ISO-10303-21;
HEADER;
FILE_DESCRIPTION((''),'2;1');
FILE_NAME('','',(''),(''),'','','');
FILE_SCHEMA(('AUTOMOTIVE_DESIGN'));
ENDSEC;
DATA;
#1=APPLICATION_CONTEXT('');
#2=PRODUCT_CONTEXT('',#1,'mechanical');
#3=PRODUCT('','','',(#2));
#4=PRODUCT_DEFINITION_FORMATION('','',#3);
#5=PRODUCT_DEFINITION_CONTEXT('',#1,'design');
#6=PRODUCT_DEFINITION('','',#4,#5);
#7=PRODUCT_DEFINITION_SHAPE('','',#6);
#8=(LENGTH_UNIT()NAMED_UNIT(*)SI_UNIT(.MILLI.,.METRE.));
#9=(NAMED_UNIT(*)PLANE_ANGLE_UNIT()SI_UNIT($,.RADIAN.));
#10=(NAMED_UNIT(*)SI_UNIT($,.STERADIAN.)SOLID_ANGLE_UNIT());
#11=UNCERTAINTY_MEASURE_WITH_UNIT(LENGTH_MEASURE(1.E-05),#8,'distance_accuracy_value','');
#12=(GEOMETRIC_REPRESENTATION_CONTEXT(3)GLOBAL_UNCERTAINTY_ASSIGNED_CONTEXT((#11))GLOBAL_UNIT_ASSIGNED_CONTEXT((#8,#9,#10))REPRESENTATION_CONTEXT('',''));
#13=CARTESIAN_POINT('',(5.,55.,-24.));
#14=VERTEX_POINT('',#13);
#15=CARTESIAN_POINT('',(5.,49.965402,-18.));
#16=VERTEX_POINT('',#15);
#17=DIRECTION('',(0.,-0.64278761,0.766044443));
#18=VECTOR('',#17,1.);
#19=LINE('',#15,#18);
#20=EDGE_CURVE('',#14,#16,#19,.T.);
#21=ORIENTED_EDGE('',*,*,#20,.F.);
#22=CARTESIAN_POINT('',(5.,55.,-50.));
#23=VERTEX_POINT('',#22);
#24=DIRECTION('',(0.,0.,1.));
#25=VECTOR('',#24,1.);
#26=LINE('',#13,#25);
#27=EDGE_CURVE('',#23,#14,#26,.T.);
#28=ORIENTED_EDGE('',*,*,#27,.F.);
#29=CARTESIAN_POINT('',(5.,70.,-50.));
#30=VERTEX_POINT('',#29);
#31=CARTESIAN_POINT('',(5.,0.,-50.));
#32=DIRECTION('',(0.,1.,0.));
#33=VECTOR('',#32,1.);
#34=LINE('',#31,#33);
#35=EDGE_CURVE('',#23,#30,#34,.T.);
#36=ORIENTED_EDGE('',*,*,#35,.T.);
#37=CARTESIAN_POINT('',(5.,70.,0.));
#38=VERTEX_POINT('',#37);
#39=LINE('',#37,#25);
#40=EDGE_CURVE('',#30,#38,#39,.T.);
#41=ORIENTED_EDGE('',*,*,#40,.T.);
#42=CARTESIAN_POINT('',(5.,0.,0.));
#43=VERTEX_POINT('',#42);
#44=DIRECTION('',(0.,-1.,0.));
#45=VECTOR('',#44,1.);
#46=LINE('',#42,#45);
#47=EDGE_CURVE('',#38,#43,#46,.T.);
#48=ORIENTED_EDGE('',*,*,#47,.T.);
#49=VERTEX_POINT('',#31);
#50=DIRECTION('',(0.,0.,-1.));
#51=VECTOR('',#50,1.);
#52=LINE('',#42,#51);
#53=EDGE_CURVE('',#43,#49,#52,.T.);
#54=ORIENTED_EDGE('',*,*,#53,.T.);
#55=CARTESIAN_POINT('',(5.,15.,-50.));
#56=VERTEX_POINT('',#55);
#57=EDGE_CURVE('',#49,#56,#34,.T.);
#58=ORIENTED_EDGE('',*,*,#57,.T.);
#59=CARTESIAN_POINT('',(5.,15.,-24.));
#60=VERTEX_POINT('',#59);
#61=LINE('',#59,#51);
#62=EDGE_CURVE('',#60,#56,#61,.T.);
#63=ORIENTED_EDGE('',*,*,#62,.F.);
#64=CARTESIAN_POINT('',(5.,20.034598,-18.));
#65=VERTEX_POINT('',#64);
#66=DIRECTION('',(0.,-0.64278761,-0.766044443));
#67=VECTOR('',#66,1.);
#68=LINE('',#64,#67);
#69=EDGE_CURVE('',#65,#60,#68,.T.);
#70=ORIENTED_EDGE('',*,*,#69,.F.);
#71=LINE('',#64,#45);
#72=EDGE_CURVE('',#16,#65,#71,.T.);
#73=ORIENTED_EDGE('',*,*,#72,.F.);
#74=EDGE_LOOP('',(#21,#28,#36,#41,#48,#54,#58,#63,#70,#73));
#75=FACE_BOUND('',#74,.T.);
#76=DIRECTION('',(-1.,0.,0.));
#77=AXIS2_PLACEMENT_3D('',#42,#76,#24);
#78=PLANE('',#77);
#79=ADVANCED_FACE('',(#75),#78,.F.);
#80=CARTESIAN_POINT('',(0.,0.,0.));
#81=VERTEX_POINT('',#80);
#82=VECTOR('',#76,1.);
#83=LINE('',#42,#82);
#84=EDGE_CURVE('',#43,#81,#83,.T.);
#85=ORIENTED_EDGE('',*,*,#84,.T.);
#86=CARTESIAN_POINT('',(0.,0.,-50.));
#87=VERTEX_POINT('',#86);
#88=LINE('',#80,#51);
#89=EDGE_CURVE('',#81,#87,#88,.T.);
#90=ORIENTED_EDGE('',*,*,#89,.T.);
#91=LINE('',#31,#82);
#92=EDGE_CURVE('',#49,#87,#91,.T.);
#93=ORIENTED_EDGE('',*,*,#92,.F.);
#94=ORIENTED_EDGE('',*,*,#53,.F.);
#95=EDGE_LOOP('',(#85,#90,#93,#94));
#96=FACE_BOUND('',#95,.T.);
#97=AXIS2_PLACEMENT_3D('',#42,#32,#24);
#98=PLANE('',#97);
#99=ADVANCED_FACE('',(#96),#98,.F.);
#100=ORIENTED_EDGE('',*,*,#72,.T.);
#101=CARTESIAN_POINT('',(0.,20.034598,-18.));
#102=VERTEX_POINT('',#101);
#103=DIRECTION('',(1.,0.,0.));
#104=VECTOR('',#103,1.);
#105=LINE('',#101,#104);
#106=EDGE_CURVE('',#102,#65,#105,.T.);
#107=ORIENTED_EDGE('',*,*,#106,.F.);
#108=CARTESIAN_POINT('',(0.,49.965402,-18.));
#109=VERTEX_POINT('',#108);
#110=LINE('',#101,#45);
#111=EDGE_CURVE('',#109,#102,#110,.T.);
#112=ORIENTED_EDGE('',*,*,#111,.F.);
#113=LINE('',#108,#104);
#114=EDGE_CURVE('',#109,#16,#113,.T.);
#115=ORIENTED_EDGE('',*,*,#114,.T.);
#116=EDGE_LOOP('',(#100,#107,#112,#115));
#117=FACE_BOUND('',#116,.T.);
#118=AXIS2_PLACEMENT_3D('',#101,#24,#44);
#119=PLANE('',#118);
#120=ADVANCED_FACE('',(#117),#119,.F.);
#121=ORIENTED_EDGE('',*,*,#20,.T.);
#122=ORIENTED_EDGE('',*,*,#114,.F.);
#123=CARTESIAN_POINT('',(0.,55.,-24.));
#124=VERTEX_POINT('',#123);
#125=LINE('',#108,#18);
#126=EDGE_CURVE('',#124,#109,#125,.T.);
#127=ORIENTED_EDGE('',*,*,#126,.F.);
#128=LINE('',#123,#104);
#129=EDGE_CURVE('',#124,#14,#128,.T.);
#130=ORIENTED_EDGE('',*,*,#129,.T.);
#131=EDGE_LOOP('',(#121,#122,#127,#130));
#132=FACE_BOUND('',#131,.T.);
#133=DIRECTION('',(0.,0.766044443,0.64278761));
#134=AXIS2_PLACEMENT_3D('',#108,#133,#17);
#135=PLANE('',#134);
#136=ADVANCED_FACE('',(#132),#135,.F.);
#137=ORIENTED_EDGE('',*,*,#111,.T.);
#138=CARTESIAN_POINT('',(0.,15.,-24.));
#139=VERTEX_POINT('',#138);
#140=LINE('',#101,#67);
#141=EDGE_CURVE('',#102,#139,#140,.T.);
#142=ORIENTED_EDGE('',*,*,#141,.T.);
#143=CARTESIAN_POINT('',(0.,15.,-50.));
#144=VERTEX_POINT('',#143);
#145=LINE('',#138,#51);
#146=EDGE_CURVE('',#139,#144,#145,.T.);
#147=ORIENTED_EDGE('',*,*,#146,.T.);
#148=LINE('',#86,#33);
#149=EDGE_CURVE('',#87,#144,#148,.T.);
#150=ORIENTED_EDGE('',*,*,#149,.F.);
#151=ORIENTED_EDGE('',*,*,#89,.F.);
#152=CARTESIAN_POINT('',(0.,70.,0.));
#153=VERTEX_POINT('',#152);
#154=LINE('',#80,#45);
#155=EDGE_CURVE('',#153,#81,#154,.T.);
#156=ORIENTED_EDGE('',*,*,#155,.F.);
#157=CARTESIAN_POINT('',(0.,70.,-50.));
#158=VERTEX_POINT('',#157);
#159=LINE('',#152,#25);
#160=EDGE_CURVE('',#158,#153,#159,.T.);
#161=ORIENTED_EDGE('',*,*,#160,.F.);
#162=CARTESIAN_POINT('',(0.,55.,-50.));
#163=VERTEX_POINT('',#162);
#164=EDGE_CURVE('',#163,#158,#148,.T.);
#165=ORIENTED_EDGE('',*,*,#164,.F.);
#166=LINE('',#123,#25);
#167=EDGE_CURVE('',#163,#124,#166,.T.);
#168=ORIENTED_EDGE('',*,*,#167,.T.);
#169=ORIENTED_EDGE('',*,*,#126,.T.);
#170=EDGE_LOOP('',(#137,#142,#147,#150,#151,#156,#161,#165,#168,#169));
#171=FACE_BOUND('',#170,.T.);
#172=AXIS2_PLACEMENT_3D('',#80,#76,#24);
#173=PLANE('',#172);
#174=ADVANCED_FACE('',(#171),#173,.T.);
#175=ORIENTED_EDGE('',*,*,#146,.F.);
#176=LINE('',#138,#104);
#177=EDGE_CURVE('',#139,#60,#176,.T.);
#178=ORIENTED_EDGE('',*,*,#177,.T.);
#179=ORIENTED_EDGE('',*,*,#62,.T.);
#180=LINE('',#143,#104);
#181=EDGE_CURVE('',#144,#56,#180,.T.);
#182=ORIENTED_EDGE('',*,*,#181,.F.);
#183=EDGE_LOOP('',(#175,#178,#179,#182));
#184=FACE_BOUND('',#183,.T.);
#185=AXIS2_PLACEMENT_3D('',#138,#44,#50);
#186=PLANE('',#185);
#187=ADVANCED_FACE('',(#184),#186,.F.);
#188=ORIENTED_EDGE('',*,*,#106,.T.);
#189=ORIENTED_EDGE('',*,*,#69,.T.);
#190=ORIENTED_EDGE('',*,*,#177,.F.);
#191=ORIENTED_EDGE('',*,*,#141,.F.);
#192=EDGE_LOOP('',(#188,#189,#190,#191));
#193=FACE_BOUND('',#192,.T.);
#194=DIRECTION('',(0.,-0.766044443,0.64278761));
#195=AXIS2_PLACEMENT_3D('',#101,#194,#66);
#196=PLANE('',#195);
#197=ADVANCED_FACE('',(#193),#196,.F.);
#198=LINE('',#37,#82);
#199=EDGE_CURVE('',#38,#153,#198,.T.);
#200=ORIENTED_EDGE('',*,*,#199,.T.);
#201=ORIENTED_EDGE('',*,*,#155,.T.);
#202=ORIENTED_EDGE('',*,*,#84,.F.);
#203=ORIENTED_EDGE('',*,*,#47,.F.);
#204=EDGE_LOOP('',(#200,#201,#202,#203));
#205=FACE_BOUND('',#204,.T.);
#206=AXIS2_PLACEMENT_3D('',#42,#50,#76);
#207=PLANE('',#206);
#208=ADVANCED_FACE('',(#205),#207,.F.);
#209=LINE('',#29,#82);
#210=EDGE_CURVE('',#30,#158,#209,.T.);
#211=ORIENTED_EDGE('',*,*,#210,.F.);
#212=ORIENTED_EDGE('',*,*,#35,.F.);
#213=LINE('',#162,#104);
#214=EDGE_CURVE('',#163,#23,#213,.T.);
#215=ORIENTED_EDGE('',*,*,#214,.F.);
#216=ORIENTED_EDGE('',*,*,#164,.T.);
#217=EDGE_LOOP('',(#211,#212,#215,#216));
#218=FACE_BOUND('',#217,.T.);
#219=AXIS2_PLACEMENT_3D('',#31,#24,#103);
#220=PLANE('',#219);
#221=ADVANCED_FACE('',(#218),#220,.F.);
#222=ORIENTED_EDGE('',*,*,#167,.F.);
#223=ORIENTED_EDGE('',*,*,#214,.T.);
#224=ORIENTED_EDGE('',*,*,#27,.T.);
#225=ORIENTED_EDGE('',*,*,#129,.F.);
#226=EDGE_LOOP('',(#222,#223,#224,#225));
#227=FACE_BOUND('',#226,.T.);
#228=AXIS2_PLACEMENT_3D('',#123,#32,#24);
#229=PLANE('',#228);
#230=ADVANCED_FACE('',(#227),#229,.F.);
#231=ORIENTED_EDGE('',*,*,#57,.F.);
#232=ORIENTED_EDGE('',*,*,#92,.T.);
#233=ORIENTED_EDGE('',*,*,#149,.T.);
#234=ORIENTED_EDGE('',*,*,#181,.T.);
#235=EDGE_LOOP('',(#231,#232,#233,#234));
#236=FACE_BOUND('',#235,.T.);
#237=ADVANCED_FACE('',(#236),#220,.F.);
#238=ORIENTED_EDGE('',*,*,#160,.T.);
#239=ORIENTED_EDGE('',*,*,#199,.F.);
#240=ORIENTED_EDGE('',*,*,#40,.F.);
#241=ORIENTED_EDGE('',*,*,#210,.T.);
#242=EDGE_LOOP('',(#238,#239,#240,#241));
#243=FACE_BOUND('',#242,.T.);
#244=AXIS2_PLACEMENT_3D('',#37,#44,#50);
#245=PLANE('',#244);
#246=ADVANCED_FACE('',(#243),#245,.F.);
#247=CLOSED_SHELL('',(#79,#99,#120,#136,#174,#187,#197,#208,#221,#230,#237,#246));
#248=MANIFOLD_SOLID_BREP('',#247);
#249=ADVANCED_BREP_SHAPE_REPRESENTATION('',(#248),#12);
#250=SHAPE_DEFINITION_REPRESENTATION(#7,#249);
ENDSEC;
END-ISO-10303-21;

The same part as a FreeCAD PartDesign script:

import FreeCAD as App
import Part
import Sketcher
Q = App.Units.Quantity

doc = App.newDocument("Part")
body = doc.addObject("PartDesign::Body", "Body")

sketch1 = doc.addObject("Sketcher::SketchObject", "Sketch")
body.addObject(sketch1)
sketch1.AttachmentSupport = (doc.YZ_Plane, [""])
sketch1.MapMode = "FlatFace"
sketch1.addGeometry(Part.LineSegment(App.Vector(70, 0, 0), App.Vector(0, 0, 0)), False)
sketch1.addGeometry(Part.LineSegment(App.Vector(0, 0, 0), App.Vector(0, -50, 0)), False)
sketch1.addGeometry(Part.LineSegment(App.Vector(0, -50, 0), App.Vector(70, -50, 0)), False)
sketch1.addGeometry(Part.LineSegment(App.Vector(70, -50, 0), App.Vector(70, 0, 0)), False)
sketch1.addConstraint(Sketcher.Constraint("Coincident", 0, 2, 1, 1))
sketch1.addConstraint(Sketcher.Constraint("Coincident", 1, 2, 2, 1))
sketch1.addConstraint(Sketcher.Constraint("Coincident", 2, 2, 3, 1))
sketch1.addConstraint(Sketcher.Constraint("Coincident", 3, 2, 0, 1))
sketch1.addConstraint(Sketcher.Constraint("Horizontal", 0))
sketch1.addConstraint(Sketcher.Constraint("Vertical", 1))
sketch1.addConstraint(Sketcher.Constraint("Horizontal", 2))
sketch1.addConstraint(Sketcher.Constraint("Vertical", 3))
sketch1.addConstraint(Sketcher.Constraint("Coincident", 0, 2, -1, 1))
sketch1.addConstraint(Sketcher.Constraint("DistanceX", 0, 2, 0, 1, Q("70 mm")))
sketch1.addConstraint(Sketcher.Constraint("DistanceY", 1, 2, 1, 1, Q("50 mm")))
pad1 = doc.addObject("PartDesign::Pad", "Pad")
body.addObject(pad1)
pad1.Profile = sketch1
pad1.Length = 5

sketch2 = doc.addObject("Sketcher::SketchObject", "Sketch001")
body.addObject(sketch2)
sketch2.AttachmentSupport = (doc.YZ_Plane, [""])
sketch2.MapMode = "FlatFace"
sketch2.AttachmentOffset = App.Placement(App.Vector(0, 0, 5), App.Rotation())
sketch2.addGeometry(Part.LineSegment(App.Vector(50, -18, 0), App.Vector(20, -18, 0)), False)
sketch2.addGeometry(Part.LineSegment(App.Vector(20, -18, 0), App.Vector(15, -24, 0)), False)
sketch2.addGeometry(Part.LineSegment(App.Vector(15, -24, 0), App.Vector(15, -50, 0)), False)
sketch2.addGeometry(Part.LineSegment(App.Vector(15, -50, 0), App.Vector(55, -50, 0)), False)
sketch2.addGeometry(Part.LineSegment(App.Vector(55, -50, 0), App.Vector(55, -24, 0)), False)
sketch2.addGeometry(Part.LineSegment(App.Vector(55, -24, 0), App.Vector(50, -18, 0)), False)
sketch2.addConstraint(Sketcher.Constraint("Coincident", 0, 2, 1, 1))
sketch2.addConstraint(Sketcher.Constraint("Coincident", 1, 2, 2, 1))
sketch2.addConstraint(Sketcher.Constraint("Coincident", 2, 2, 3, 1))
sketch2.addConstraint(Sketcher.Constraint("Coincident", 3, 2, 4, 1))
sketch2.addConstraint(Sketcher.Constraint("Coincident", 4, 2, 5, 1))
sketch2.addConstraint(Sketcher.Constraint("Coincident", 5, 2, 0, 1))
sketch2.addConstraint(Sketcher.Constraint("Horizontal", 0))
sketch2.addConstraint(Sketcher.Constraint("Vertical", 2))
sketch2.addConstraint(Sketcher.Constraint("Horizontal", 3))
sketch2.addConstraint(Sketcher.Constraint("Vertical", 4))
sketch2.addConstraint(Sketcher.Constraint("Horizontal", 1, 2, 4, 2))
sketch2.addConstraint(Sketcher.Constraint("Equal", 1, 5))
sketch2.addConstraint(Sketcher.Constraint("DistanceX", 3, 1, 3, 2, Q("40 mm")))
sketch2.addConstraint(Sketcher.Constraint("DistanceY", 2, 2, 2, 1, Q("26 mm")))
sketch2.addConstraint(Sketcher.Constraint("Angle", 1, Q("-130 deg")))
sketch2.addConstraint(Sketcher.Constraint("DistanceY", 0, 2, -1, 1, Q("18 mm")))
sketch2.addConstraint(Sketcher.Constraint("DistanceX", -1, 1, 1, 2, Q("15 mm")))
sketch2.addConstraint(Sketcher.Constraint("DistanceY", 1, 2, -1, 1, Q("24 mm")))
pocket1 = doc.addObject("PartDesign::Pocket", "Pocket")
body.addObject(pocket1)
pocket1.Profile = sketch2
pocket1.Type = "ThroughAll"

doc.recompute()
